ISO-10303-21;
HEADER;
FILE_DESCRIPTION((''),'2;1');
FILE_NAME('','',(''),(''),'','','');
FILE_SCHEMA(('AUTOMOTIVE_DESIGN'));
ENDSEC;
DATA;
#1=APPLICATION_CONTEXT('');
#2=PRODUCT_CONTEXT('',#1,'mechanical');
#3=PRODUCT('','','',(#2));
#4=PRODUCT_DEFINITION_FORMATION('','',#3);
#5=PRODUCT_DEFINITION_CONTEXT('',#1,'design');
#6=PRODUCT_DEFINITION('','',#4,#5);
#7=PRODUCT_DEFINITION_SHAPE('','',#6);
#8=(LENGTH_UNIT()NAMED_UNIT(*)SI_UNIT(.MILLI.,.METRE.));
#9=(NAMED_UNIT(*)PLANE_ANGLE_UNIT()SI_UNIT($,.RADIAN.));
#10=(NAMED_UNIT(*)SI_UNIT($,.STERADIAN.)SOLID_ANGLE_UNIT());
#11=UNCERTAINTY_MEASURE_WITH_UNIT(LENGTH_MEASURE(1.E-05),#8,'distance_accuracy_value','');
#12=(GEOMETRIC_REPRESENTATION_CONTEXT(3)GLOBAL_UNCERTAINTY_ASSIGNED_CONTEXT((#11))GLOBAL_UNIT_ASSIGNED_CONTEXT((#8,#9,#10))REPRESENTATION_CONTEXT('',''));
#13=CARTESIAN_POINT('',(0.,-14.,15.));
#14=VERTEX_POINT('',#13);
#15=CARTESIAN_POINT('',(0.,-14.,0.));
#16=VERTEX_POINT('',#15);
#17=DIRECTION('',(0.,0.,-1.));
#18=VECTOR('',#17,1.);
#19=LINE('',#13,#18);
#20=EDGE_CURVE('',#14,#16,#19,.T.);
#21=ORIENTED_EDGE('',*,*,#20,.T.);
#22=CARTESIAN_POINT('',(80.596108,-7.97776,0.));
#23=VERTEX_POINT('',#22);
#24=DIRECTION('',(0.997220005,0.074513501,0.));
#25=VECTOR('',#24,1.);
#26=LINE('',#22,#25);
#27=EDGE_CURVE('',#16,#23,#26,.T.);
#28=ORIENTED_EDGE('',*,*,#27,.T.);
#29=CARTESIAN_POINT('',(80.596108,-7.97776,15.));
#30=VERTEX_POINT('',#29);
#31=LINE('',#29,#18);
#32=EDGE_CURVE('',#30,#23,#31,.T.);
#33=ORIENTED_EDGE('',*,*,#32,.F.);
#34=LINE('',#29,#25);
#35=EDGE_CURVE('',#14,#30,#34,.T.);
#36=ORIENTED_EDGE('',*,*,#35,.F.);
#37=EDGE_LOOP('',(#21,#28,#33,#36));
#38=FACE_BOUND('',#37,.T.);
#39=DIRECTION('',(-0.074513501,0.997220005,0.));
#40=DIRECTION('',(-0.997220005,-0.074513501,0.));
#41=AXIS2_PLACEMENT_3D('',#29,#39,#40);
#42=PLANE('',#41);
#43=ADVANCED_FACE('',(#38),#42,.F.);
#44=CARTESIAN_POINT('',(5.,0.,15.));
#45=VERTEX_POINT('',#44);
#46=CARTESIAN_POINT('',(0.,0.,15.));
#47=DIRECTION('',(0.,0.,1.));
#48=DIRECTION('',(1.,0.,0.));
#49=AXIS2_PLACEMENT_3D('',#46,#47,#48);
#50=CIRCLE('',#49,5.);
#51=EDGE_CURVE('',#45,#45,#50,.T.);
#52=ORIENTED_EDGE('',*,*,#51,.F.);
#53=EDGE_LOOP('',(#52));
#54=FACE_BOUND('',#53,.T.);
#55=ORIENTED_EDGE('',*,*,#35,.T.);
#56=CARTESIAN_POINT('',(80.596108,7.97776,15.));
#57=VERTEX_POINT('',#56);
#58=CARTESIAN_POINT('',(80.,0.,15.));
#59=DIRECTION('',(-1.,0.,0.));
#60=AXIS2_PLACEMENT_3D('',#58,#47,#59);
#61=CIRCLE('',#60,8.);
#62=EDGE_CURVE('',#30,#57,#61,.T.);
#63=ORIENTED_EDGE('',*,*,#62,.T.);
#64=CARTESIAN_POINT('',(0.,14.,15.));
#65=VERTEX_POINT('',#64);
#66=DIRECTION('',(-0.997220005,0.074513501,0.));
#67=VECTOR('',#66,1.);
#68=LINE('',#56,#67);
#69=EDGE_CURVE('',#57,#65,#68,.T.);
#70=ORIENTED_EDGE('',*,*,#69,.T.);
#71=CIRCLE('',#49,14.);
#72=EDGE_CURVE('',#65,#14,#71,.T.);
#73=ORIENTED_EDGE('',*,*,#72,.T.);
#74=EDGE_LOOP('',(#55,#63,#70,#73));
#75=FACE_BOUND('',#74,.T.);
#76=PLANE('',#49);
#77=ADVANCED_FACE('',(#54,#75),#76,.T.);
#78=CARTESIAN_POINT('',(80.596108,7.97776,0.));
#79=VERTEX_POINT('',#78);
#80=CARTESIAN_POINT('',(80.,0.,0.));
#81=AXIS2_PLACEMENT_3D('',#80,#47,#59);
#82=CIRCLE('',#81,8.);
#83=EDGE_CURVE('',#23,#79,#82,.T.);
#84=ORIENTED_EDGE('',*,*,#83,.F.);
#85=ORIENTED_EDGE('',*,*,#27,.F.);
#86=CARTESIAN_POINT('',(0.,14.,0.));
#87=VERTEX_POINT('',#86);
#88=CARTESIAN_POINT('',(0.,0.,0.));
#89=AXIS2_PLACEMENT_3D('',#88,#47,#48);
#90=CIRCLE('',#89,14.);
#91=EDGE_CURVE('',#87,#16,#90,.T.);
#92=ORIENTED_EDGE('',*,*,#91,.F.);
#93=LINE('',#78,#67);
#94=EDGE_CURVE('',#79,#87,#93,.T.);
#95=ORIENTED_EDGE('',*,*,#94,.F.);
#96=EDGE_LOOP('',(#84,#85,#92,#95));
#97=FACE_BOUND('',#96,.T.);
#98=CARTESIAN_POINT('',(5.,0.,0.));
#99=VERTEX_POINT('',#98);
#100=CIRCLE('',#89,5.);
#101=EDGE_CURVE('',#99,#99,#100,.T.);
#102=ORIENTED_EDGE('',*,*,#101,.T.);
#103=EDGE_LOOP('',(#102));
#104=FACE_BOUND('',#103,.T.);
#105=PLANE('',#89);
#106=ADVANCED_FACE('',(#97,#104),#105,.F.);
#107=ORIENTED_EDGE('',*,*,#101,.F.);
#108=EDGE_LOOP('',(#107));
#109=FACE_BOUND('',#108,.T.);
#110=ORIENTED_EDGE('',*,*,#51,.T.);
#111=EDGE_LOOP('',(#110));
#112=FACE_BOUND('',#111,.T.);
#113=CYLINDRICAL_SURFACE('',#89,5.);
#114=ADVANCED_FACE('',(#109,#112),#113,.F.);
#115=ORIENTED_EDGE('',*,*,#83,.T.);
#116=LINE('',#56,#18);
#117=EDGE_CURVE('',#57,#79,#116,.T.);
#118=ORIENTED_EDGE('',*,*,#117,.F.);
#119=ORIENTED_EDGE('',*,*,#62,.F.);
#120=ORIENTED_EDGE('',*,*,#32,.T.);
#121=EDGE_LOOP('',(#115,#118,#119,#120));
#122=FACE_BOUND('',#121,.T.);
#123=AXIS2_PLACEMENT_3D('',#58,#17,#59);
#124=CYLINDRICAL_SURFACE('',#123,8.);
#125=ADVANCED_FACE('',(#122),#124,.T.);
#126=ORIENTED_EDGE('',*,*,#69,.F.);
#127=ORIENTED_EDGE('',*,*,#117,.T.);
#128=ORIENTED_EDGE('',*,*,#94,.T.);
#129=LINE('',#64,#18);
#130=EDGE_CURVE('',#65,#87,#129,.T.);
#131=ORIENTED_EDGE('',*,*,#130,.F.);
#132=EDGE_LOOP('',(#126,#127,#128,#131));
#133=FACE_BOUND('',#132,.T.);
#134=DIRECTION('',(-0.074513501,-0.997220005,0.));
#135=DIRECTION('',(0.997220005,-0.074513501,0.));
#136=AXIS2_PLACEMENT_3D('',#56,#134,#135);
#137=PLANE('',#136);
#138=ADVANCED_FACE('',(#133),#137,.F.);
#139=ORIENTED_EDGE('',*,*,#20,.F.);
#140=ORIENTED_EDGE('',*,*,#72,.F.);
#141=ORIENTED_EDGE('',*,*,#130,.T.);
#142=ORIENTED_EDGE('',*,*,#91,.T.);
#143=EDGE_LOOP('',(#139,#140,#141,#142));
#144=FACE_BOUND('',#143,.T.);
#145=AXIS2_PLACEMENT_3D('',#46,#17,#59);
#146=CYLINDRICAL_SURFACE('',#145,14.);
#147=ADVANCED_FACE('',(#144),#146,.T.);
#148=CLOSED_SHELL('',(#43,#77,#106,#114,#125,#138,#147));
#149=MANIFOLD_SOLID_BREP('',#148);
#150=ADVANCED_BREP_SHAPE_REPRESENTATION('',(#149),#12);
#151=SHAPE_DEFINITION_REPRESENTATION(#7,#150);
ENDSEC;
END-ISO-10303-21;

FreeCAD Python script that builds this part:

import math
import FreeCAD as App
import Part
import Sketcher

V = App.Vector

doc = App.newDocument("Part")
body = doc.addObject("PartDesign::Body", "Body")

# Sketch on XY plane
sketch1 = body.newObject("Sketcher::SketchObject", "Sketch")
sketch1.AttachmentSupport = (doc.getObject("XY_Plane"), [""])
sketch1.MapMode = "FlatFace"
sketch1.addGeometry([
    Part.LineSegment(V(81, 8, 0), V(0, 14, 0)),
    Part.ArcOfCircle(Part.Circle(V(0, 0, 0), V(0, 0, 1), 14), math.radians(90), math.radians(270)),
    Part.LineSegment(V(0, -14, 0), V(81, -8, 0)),
    Part.ArcOfCircle(Part.Circle(V(80, 0, 0), V(0, 0, 1), 8), math.radians(-86), math.radians(86)),
], False)
sketch1.addConstraint([
    Sketcher.Constraint("Coincident", 0, 2, 1, 1),
    Sketcher.Constraint("Coincident", 1, 2, 2, 1),
    Sketcher.Constraint("Tangent", 2, 2, 3, 1),
    Sketcher.Constraint("Tangent", 3, 2, 0, 1),
    Sketcher.Constraint("Coincident", 1, 3, -1, 1),
    Sketcher.Constraint("Symmetric", 2, 2, 3, 2, -1),
    Sketcher.Constraint("PointOnObject", 0, 2, -2),
    Sketcher.Constraint("Radius", 1, 14.0),
    Sketcher.Constraint("Radius", 3, 8.0),
    Sketcher.Constraint("DistanceX", -1, 1, 3, 3, 80.0),
])
pad1 = body.newObject("PartDesign::Pad", "Pad")
pad1.Profile = sketch1
pad1.Length = 15

# Sketch on XY plane
sketch2 = body.newObject("Sketcher::SketchObject", "Sketch001")
sketch2.AttachmentSupport = (doc.getObject("XY_Plane"), [""])
sketch2.MapMode = "FlatFace"
sketch2.AttachmentOffset = App.Placement(V(0, 0, 15), App.Rotation())
sketch2.addGeometry(Part.Circle(V(0, 0, 0), V(0, 0, 1), 5), False)
sketch2.addConstraint([
    Sketcher.Constraint("Coincident", 0, 3, -1, 1),
    Sketcher.Constraint("Diameter", 0, 10.0),
])
pocket1 = body.newObject("PartDesign::Pocket", "Pocket")
pocket1.Profile = sketch2
pocket1.Type = "ThroughAll"
pocket1.Midplane = True

doc.recompute()
